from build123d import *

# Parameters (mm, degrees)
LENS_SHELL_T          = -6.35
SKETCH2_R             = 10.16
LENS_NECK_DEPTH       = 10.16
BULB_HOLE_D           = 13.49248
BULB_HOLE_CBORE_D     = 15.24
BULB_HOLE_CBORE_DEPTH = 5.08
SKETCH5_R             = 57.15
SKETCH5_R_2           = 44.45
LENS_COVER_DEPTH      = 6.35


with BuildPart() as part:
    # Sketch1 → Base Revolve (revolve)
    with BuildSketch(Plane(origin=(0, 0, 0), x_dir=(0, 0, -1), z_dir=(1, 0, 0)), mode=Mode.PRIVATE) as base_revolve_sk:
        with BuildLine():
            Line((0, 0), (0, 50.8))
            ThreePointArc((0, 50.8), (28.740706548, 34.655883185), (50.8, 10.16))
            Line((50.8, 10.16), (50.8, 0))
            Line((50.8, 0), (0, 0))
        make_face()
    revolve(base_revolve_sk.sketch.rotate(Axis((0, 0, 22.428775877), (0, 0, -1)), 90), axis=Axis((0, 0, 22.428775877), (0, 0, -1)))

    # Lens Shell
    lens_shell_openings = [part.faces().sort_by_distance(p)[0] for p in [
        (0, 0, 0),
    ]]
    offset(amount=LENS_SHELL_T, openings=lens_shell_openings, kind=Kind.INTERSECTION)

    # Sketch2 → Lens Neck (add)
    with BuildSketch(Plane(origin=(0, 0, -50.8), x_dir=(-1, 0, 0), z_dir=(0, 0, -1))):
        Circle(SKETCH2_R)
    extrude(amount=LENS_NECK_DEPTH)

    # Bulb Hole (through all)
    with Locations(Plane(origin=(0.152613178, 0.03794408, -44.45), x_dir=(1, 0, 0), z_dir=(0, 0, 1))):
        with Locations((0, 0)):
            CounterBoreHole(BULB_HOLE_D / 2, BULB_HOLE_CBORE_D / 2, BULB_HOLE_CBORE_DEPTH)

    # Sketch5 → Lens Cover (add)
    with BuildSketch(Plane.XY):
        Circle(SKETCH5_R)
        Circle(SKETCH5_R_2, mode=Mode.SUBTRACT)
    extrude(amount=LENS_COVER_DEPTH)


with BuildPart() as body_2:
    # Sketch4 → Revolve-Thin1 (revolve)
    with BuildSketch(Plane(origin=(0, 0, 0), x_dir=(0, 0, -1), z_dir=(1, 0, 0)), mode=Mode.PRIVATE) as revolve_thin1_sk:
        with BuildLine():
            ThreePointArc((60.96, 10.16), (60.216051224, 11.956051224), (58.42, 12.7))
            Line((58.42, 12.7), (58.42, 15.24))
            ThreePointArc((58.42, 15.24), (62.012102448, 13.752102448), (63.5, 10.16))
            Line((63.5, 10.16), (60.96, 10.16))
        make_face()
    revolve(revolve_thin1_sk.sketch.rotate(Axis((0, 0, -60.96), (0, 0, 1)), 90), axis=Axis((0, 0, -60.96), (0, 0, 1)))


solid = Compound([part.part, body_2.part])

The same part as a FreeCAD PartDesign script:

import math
import FreeCAD as App
import Part
import Sketcher
Q = App.Units.Quantity


def faces_at(feature, points):
    """Names of the faces that lie closest to the given points."""
    faces = feature.Shape.Faces
    near = lambda p: min(range(len(faces)), key=lambda i: faces[i].distToShape(Part.Vertex(*p))[0])
    return sorted({f"Face{near(p) + 1}" for p in points})

doc = App.newDocument("Part")
body = doc.addObject("PartDesign::Body", "Body")

# Sketch on YZ plane
sketch1 = doc.addObject("Sketcher::SketchObject", "Sketch")
body.addObject(sketch1)
sketch1.AttachmentSupport = (doc.YZ_Plane, [""])
sketch1.MapMode = "FlatFace"
sketch1.addGeometry([
    Part.LineSegment(App.Vector(51, 0, 0), App.Vector(0, 0, 0)),
    Part.LineSegment(App.Vector(0, 0, 0), App.Vector(0, -51, 0)),
    Part.LineSegment(App.Vector(0, -51, 0), App.Vector(10, -51, 0)),
    Part.ArcOfCircle(Part.Circle(App.Vector(-45, 35, 0), App.Vector(0, 0, 1), 102), math.radians(-57), math.radians(-20)),
], False)
sketch1.addConstraint([
    Sketcher.Constraint("Coincident", 0, 2, 1, 1),
    Sketcher.Constraint("Coincident", 1, 2, 2, 1),
    Sketcher.Constraint("Coincident", 2, 2, 3, 1),
    Sketcher.Constraint("Coincident", 3, 2, 0, 1),
    Sketcher.Constraint("Horizontal", 0),
    Sketcher.Constraint("Vertical", 1),
    Sketcher.Constraint("Horizontal", 2),
    Sketcher.Constraint("Coincident", 0, 2, -1, 1),
    Sketcher.Constraint("Equal", 0, 1),
    Sketcher.Constraint("Radius", 3, Q("4 in")),
    Sketcher.Constraint("DistanceX", 0, 2, 0, 1, Q("2 in")),
    Sketcher.Constraint("DistanceX", 2, 1, 2, 2, Q("0.4 in")),
])
revolution = doc.addObject("PartDesign::Revolution", "Revolution")
body.addObject(revolution)
revolution.Profile = sketch1
revolution.ReferenceAxis = (sketch1, ["V_Axis"])
revolution.Angle = 360
doc.recompute()

thickness = doc.addObject("PartDesign::Thickness", "Thickness")
body.addObject(thickness)
thickness.Base = (revolution, faces_at(revolution, [(0, 0, 0)]))
thickness.Value = Q("0.25 in")
thickness.Reversed = True
thickness.Join = "Intersection"

# Sketch on XY plane
sketch2 = doc.addObject("Sketcher::SketchObject", "Sketch001")
body.addObject(sketch2)
sketch2.AttachmentSupport = (doc.XY_Plane, [""])
sketch2.MapMode = "FlatFace"
sketch2.AttachmentOffset = App.Placement(App.Vector(0, 0, -2 * 25.4), App.Rotation())
sketch2.addGeometry(Part.Circle(App.Vector(0, 0, 0), App.Vector(0, 0, 1), 10), False)
sketch2.addConstraint([
    Sketcher.Constraint("Coincident", 0, 3, -1, 1),
    Sketcher.Constraint("Diameter", 0, Q("0.8 in")),
])
pad1 = doc.addObject("PartDesign::Pad", "Pad")
body.addObject(pad1)
pad1.Profile = sketch2
pad1.Length = Q("0.4 in")
pad1.Reversed = True

# Sketch on XY plane
sketch3 = doc.addObject("Sketcher::SketchObject", "Sketch002")
body.addObject(sketch3)
sketch3.AttachmentSupport = (doc.XY_Plane, [""])
sketch3.MapMode = "FlatFace"
sketch3.AttachmentOffset = App.Placement(App.Vector(0, 0, -1.75 * 25.4), App.Rotation())
sketch3.addGeometry(Part.Circle(App.Vector(0, 0, 0), App.Vector(0, 0, 1), 7), False)
sketch3.addConstraint([
    Sketcher.Constraint("Diameter", 0, Q("0.5312 in")),
    Sketcher.Constraint("DistanceX", -1, 1, 0, 3, Q("0.152613 mm")),
    Sketcher.Constraint("DistanceY", -1, 1, 0, 3, Q("0.037944 mm")),
])
doc.recompute()
hole = doc.addObject("PartDesign::Hole", "Hole")
body.addObject(hole)
hole.Profile = sketch3
hole.ThreadType = "None"
hole.Diameter = Q("0.5312 in")
hole.DepthType = "ThroughAll"
hole.HoleCutType = "Counterbore"
hole.HoleCutDiameter = Q("0.6 in")
hole.HoleCutDepth = Q("0.2 in")

# Sketch on XY plane
sketch4 = doc.addObject("Sketcher::SketchObject", "Sketch003")
body.addObject(sketch4)
sketch4.AttachmentSupport = (doc.XY_Plane, [""])
sketch4.MapMode = "FlatFace"
sketch4.addGeometry([
    Part.Circle(App.Vector(0, 0, 0), App.Vector(0, 0, 1), 57),
    Part.Circle(App.Vector(0, 0, 0), App.Vector(0, 0, 1), 44),
], False)
sketch4.addConstraint([
    Sketcher.Constraint("Coincident", 0, 3, -1, 1),
    Sketcher.Constraint("Coincident", 1, 3, -1, 1),
    Sketcher.Constraint("Diameter", 0, Q("4.5 in")),
    Sketcher.Constraint("Diameter", 1, Q("3.5 in")),
])
pad2 = doc.addObject("PartDesign::Pad", "Pad001")
body.addObject(pad2)
pad2.Profile = sketch4
pad2.Length = Q("0.25 in")
body2 = doc.addObject("PartDesign::Body", "Body001")

# Sketch on YZ plane
sketch5 = doc.addObject("Sketcher::SketchObject", "Sketch004")
body2.addObject(sketch5)
sketch5.AttachmentSupport = (doc.getObject("YZ_Plane001"), [""])
sketch5.MapMode = "FlatFace"
sketch5.addGeometry([
    Part.ArcOfCircle(Part.Circle(App.Vector(10.2, -58.4, 0), App.Vector(0, 0, 1), 2.5), math.radians(-90), math.radians(0)),
    Part.LineSegment(App.Vector(10.2, -61, 0), App.Vector(10.2, -63.5, 0)),
    Part.ArcOfCircle(Part.Circle(App.Vector(10.2, -58.4, 0), App.Vector(0, 0, 1), 5.1), math.radians(-90), math.radians(0)),
    Part.LineSegment(App.Vector(15.2, -58.4, 0), App.Vector(12.7, -58.4, 0)),
], False)
sketch5.addConstraint([
    Sketcher.Constraint("Coincident", 0, 1, 1, 1),
    Sketcher.Constraint("Coincident", 1, 2, 2, 1),
    Sketcher.Constraint("Coincident", 2, 2, 3, 1),
    Sketcher.Constraint("Coincident", 3, 2, 0, 2),
    Sketcher.Constraint("Vertical", 1),
    Sketcher.Constraint("Horizontal", 3),
    Sketcher.Constraint("Coincident", 2, 3, 0, 3),
    Sketcher.Constraint("Horizontal", 0, 3, 2, 2),
    Sketcher.Constraint("Vertical", 2, 3, 0, 1),
    Sketcher.Constraint("Radius", 0, Q("0.1 in")),
    Sketcher.Constraint("Radius", 2, Q("0.2 in")),
    Sketcher.Constraint("DistanceX", -1, 1, 0, 3, Q("0.4 in")),
    Sketcher.Constraint("DistanceY", 0, 3, -1, 1, Q("2.3 in")),
])
revolution2 = doc.addObject("PartDesign::Revolution", "Revolution001")
body2.addObject(revolution2)
revolution2.Profile = sketch5
revolution2.ReferenceAxis = (sketch5, ["V_Axis"])
revolution2.Angle = 360

doc.recompute()
